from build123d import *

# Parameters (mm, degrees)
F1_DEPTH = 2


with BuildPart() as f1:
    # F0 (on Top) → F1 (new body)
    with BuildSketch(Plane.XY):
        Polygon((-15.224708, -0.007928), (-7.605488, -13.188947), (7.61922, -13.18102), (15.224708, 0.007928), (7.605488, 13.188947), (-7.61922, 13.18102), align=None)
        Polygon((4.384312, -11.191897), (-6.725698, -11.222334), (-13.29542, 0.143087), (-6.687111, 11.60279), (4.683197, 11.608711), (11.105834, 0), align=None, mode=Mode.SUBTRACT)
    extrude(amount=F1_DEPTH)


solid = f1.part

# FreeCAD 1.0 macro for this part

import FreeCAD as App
import Part
import Sketcher


def add_polygon(sketch, points):
    """Adds a closed chain of lines whose ends are joined by coincident constraints."""
    first, n = sketch.GeometryCount, len(points)
    for a, b in zip(points, points[1:] + points[:1]):
        sketch.addGeometry(Part.LineSegment(App.Vector(*a, 0), App.Vector(*b, 0)), False)
    for i in range(n):
        sketch.addConstraint(Sketcher.Constraint("Coincident", first + i, 2, first + (i + 1) % n, 1))

doc = App.newDocument("Part")
body = doc.addObject("PartDesign::Body", "Body")

# Sketch on XY plane
sketch1 = body.newObject("Sketcher::SketchObject", "Sketch")
sketch1.AttachmentSupport = (doc.getObject("XY_Plane"), [""])
sketch1.MapMode = "FlatFace"
add_polygon(sketch1, [(-15, 0), (-8, -13), (8, -13), (15, 0), (8, 13), (-8, 13)])  # lines 0-5
add_polygon(sketch1, [(11, 0), (4, -11), (-7, -11), (-13, 0), (-7, 12), (5, 12)])  # lines 6-11
sketch1.addConstraint([
    Sketcher.Constraint("Symmetric", 0, 2, 3, 2, -1, 1),
    Sketcher.Constraint("Symmetric", 1, 2, 4, 2, -1, 1),
    Sketcher.Constraint("Symmetric", 2, 2, 5, 2, -1, 1),
    Sketcher.Constraint("PointOnObject", 11, 2, -1),
    Sketcher.Constraint("Parallel", 3, 8),
    Sketcher.Constraint("Parallel", 5, 9),
    Sketcher.Constraint("Parallel", 4, 10),
    Sketcher.Constraint("Equal", 0, 1),
    Sketcher.Constraint("Equal", 1, 2),
    Sketcher.Constraint("DistanceX", 7, 2, -1, 1, 6.725698),
    Sketcher.Constraint("DistanceX", 0, 2, 6, 2, 11.9898),
    Sketcher.Constraint("DistanceX", 8, 2, 4, 2, 5.6762),
    Sketcher.Constraint("DistanceX", 9, 2, 3, 2, 14.292599),
    Sketcher.Constraint("Distance", 0, 15.224709),
    Sketcher.Constraint("Distance", 6, 13.055168),
    Sketcher.Constraint("Distance", 7, 11.110052),
    Sketcher.Constraint("Distance", 9, 13.22855),
    Sketcher.Constraint("Distance", 10, 11.37031),
    Sketcher.Constraint("DistanceY", 1, 2, -1, 1, 13.18102),
    Sketcher.Constraint("DistanceY", -1, 1, 9, 2, 11.60279),
    Sketcher.Constraint("DistanceY", 0, 2, 6, 2, 1.99705),
])
pad1 = body.newObject("PartDesign::Pad", "Pad")
pad1.Profile = sketch1
pad1.Length = 2

doc.recompute()
